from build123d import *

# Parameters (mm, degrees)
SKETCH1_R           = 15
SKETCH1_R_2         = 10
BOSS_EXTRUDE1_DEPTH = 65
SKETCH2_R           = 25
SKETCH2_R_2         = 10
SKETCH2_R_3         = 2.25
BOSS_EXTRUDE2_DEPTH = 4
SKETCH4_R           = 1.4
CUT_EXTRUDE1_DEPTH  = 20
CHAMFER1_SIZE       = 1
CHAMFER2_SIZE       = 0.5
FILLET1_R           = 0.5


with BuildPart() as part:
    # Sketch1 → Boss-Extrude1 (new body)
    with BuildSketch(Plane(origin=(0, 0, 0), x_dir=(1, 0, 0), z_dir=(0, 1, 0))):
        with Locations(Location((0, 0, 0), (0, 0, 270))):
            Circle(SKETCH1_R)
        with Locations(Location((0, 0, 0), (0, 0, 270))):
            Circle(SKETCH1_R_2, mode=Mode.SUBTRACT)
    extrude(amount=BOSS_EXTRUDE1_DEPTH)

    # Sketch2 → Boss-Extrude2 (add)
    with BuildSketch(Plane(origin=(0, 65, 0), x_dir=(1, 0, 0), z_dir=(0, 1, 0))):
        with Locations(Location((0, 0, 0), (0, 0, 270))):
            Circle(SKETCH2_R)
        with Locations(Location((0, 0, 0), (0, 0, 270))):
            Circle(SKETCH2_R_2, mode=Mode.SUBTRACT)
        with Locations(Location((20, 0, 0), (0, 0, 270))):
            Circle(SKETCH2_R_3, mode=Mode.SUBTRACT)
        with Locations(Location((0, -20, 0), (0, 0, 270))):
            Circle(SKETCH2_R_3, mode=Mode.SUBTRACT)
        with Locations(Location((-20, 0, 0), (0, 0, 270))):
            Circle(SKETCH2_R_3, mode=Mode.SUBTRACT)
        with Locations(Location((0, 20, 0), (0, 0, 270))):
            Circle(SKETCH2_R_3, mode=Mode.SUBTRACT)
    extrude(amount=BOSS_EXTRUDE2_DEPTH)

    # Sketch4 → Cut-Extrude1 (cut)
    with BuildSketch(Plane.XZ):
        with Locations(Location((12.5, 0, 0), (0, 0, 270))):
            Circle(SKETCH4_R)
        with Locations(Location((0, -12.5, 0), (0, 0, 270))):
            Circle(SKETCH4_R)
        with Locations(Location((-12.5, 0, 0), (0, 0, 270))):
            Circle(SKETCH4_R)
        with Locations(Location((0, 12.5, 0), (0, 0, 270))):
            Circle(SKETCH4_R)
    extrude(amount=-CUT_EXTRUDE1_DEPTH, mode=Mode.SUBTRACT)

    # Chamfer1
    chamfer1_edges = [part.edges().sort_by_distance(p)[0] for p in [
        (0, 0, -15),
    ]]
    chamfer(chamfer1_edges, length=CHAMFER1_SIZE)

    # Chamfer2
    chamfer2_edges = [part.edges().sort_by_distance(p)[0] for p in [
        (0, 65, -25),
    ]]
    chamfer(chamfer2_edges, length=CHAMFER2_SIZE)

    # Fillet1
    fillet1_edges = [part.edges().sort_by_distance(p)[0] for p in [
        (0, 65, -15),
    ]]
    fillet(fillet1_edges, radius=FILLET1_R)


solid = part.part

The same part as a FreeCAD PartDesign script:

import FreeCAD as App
import Part
import Sketcher


def edges_at(feature, points):
    """Names of the edges that pass closest to the given points."""
    edges = feature.Shape.Edges
    near = lambda p: min(range(len(edges)), key=lambda i: edges[i].distToShape(Part.Vertex(*p))[0])
    return sorted({f"Edge{near(p) + 1}" for p in points})

doc = App.newDocument("Part")
body = doc.addObject("PartDesign::Body", "Body")

sketch1 = body.newObject("Sketcher::SketchObject", "Sketch")
sketch1.AttachmentSupport = (doc.getObject("XZ_Plane"), [""])
sketch1.MapMode = "FlatFace"
sketch1.addGeometry(Part.Circle(App.Vector(0, 0, 0), App.Vector(0, 0, 1), 15), False)
sketch1.addGeometry(Part.Circle(App.Vector(0, 0, 0), App.Vector(0, 0, 1), 10), False)
sketch1.addConstraint(Sketcher.Constraint("Coincident", 0, 3, -1, 1))
sketch1.addConstraint(Sketcher.Constraint("Coincident", 1, 3, -1, 1))
sketch1.addConstraint(Sketcher.Constraint("Diameter", 0, 30.0))
sketch1.addConstraint(Sketcher.Constraint("Diameter", 1, 20.0))
pad1 = body.newObject("PartDesign::Pad", "Pad")
pad1.Profile = sketch1
pad1.Length = 65
pad1.Reversed = True

sketch2 = body.newObject("Sketcher::SketchObject", "Sketch001")
sketch2.AttachmentSupport = (doc.getObject("XZ_Plane"), [""])
sketch2.MapMode = "FlatFace"
sketch2.AttachmentOffset = App.Placement(App.Vector(0, 0, -65), App.Rotation())
sketch2.addGeometry(Part.Circle(App.Vector(0, 0, 0), App.Vector(0, 0, 1), 25), False)
sketch2.addGeometry(Part.Circle(App.Vector(0, -20, 0), App.Vector(0, 0, 1), 2.25), False)
sketch2.addGeometry(Part.Circle(App.Vector(-20, 0, 0), App.Vector(0, 0, 1), 2.25), False)
sketch2.addGeometry(Part.Circle(App.Vector(20, 0, 0), App.Vector(0, 0, 1), 2.25), False)
sketch2.addGeometry(Part.Circle(App.Vector(0, 0, 0), App.Vector(0, 0, 1), 10), False)
sketch2.addGeometry(Part.Circle(App.Vector(0, 20, 0), App.Vector(0, 0, 1), 2.25), False)
sketch2.addConstraint(Sketcher.Constraint("Coincident", 0, 3, -1, 1))
sketch2.addConstraint(Sketcher.Constraint("Coincident", 4, 3, -1, 1))
sketch2.addConstraint(Sketcher.Constraint("Equal", 1, 2))
sketch2.addConstraint(Sketcher.Constraint("Equal", 2, 3))
sketch2.addConstraint(Sketcher.Constraint("Equal", 3, 5))
sketch2.addConstraint(Sketcher.Constraint("Symmetric", 2, 3, 3, 3, -1, 1))
sketch2.addConstraint(Sketcher.Constraint("Symmetric", 1, 3, 5, 3, -1, 1))
sketch2.addConstraint(Sketcher.Constraint("PointOnObject", 1, 3, -2))
sketch2.addConstraint(Sketcher.Constraint("PointOnObject", 2, 3, -1))
sketch2.addConstraint(Sketcher.Constraint("Diameter", 0, 50.0))
sketch2.addConstraint(Sketcher.Constraint("Diameter", 4, 20.0))
sketch2.addConstraint(Sketcher.Constraint("Diameter", 1, 4.5))
sketch2.addConstraint(Sketcher.Constraint("DistanceY", 1, 3, -1, 1, 20.0))
sketch2.addConstraint(Sketcher.Constraint("DistanceX", 2, 3, -1, 1, 20.0))
pad2 = body.newObject("PartDesign::Pad", "Pad001")
pad2.Profile = sketch2
pad2.Length = 4
pad2.Reversed = True

sketch3 = body.newObject("Sketcher::SketchObject", "Sketch002")
sketch3.AttachmentSupport = (doc.getObject("XZ_Plane"), [""])
sketch3.MapMode = "FlatFace"
sketch3.addGeometry(Part.Circle(App.Vector(12.5, 0, 0), App.Vector(0, 0, 1), 1.4), False)
sketch3.addGeometry(Part.Circle(App.Vector(0, -12.5, 0), App.Vector(0, 0, 1), 1.4), False)
sketch3.addGeometry(Part.Circle(App.Vector(-12.5, 0, 0), App.Vector(0, 0, 1), 1.4), False)
sketch3.addGeometry(Part.Circle(App.Vector(0, 12.5, 0), App.Vector(0, 0, 1), 1.4), False)
sketch3.addConstraint(Sketcher.Constraint("Equal", 0, 1))
sketch3.addConstraint(Sketcher.Constraint("Equal", 1, 2))
sketch3.addConstraint(Sketcher.Constraint("Equal", 2, 3))
sketch3.addConstraint(Sketcher.Constraint("Symmetric", 0, 3, 2, 3, -1, 1))
sketch3.addConstraint(Sketcher.Constraint("Symmetric", 1, 3, 3, 3, -1, 1))
sketch3.addConstraint(Sketcher.Constraint("PointOnObject", 0, 3, -1))
sketch3.addConstraint(Sketcher.Constraint("PointOnObject", 1, 3, -2))
sketch3.addConstraint(Sketcher.Constraint("Diameter", 0, 2.8))
sketch3.addConstraint(Sketcher.Constraint("DistanceX", 2, 3, 0, 3, 25.0))
sketch3.addConstraint(Sketcher.Constraint("DistanceY", 1, 3, 3, 3, 25.0))
pocket1 = body.newObject("PartDesign::Pocket", "Pocket")
pocket1.Profile = sketch3
pocket1.Length = 20
doc.recompute()

chamfer = body.newObject("PartDesign::Chamfer", "Chamfer")
chamfer.Base = (pocket1, edges_at(pocket1, [(0, 0, -15)]))
chamfer.Size = 1
doc.recompute()

chamfer2 = body.newObject("PartDesign::Chamfer", "Chamfer001")
chamfer2.Base = (chamfer, edges_at(chamfer, [(0, 65, -25)]))
chamfer2.Size = 0.5
doc.recompute()

fillet = body.newObject("PartDesign::Fillet", "Fillet")
fillet.Base = (chamfer2, edges_at(chamfer2, [(0, 65, -15)]))
fillet.Radius = 0.5

doc.recompute()
